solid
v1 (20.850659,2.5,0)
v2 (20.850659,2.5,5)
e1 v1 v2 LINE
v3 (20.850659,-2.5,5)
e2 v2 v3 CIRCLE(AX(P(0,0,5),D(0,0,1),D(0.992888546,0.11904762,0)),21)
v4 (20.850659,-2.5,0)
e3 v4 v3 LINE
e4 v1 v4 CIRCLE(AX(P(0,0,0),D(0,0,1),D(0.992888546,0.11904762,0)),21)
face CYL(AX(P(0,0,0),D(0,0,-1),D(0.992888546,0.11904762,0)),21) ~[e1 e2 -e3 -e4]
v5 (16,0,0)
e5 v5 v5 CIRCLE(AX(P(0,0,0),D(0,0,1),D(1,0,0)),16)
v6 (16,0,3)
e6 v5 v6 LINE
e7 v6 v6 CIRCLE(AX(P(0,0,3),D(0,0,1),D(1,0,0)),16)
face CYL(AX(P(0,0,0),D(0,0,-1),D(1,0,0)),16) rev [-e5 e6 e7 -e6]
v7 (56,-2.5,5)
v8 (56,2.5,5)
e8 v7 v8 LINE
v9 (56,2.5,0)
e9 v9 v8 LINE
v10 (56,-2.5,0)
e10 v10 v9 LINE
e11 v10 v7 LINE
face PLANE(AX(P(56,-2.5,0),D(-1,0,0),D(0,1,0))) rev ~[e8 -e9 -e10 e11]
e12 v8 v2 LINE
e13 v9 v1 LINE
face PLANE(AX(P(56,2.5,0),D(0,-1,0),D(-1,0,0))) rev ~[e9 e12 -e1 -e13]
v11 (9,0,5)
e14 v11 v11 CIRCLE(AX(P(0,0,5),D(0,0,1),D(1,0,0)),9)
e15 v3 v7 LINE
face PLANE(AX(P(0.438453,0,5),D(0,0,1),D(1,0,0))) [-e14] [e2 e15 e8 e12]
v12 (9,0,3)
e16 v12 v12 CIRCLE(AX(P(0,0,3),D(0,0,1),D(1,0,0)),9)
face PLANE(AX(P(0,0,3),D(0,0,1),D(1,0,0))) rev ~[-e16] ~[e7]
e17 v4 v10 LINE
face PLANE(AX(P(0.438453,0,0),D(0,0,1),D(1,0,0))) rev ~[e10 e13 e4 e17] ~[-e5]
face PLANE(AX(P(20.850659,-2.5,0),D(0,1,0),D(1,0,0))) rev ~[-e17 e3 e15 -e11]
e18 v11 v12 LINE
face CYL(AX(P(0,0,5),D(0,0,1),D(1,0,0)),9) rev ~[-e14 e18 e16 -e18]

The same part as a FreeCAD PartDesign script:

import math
import FreeCAD as App
import Part
import Sketcher

V = App.Vector
Q = App.Units.Quantity

doc = App.newDocument("Part")
body = doc.addObject("PartDesign::Body", "Body")

sketch1 = doc.addObject("Sketcher::SketchObject", "Sketch")
body.addObject(sketch1)
sketch1.AttachmentSupport = (doc.XY_Plane, [""])
sketch1.MapMode = "FlatFace"
sketch1.addGeometry([
    Part.ArcOfCircle(Part.Circle(V(0, 0, 0), V(0, 0, 1), 21), math.radians(7), math.radians(353)),
    Part.LineSegment(V(21, -2, 0), V(56, -2, 0)),
    Part.LineSegment(V(56, -2, 0), V(56, 2, 0)),
    Part.LineSegment(V(56, 2, 0), V(21, 2, 0)),
], False)
sketch1.addConstraint([
    Sketcher.Constraint("Coincident", 0, 2, 1, 1),
    Sketcher.Constraint("Coincident", 1, 2, 2, 1),
    Sketcher.Constraint("Coincident", 2, 2, 3, 1),
    Sketcher.Constraint("Coincident", 3, 2, 0, 1),
    Sketcher.Constraint("Horizontal", 1),
    Sketcher.Constraint("Vertical", 2),
    Sketcher.Constraint("Horizontal", 3),
    Sketcher.Constraint("Coincident", 0, 3, -1, 1),
    Sketcher.Constraint("Vertical", 0, 2, 3, 2),
    Sketcher.Constraint("Radius", 0, Q("21 mm")),
    Sketcher.Constraint("DistanceY", 2, 1, 2, 2, Q("5 mm")),
    Sketcher.Constraint("DistanceX", -1, 1, 1, 2, Q("56 mm")),
])
pad1 = doc.addObject("PartDesign::Pad", "Pad")
body.addObject(pad1)
pad1.Profile = sketch1
pad1.Length = 5

sketch2 = doc.addObject("Sketcher::SketchObject", "Sketch001")
body.addObject(sketch2)
sketch2.AttachmentSupport = (doc.XY_Plane, [""])
sketch2.MapMode = "FlatFace"
sketch2.addGeometry(Part.Circle(V(0, 0, 0), V(0, 0, 1), 16), False)
sketch2.addConstraint([
    Sketcher.Constraint("Coincident", 0, 3, -1, 1),
    Sketcher.Constraint("Diameter", 0, Q("32 mm")),
])
pocket1 = doc.addObject("PartDesign::Pocket", "Pocket")
body.addObject(pocket1)
pocket1.Profile = sketch2
pocket1.Length = 3
pocket1.Reversed = True

sketch3 = doc.addObject("Sketcher::SketchObject", "Sketch002")
body.addObject(sketch3)
sketch3.AttachmentSupport = (doc.XY_Plane, [""])
sketch3.MapMode = "FlatFace"
sketch3.AttachmentOffset = App.Placement(V(0, 0, 5), App.Rotation())
sketch3.addGeometry(Part.Circle(V(0, 0, 0), V(0, 0, 1), 9), False)
sketch3.addConstraint([
    Sketcher.Constraint("Coincident", 0, 3, -1, 1),
    Sketcher.Constraint("Diameter", 0, Q("18 mm")),
])
pocket2 = doc.addObject("PartDesign::Pocket", "Pocket001")
body.addObject(pocket2)
pocket2.Profile = sketch3
pocket2.Type = "ThroughAll"

doc.recompute()
